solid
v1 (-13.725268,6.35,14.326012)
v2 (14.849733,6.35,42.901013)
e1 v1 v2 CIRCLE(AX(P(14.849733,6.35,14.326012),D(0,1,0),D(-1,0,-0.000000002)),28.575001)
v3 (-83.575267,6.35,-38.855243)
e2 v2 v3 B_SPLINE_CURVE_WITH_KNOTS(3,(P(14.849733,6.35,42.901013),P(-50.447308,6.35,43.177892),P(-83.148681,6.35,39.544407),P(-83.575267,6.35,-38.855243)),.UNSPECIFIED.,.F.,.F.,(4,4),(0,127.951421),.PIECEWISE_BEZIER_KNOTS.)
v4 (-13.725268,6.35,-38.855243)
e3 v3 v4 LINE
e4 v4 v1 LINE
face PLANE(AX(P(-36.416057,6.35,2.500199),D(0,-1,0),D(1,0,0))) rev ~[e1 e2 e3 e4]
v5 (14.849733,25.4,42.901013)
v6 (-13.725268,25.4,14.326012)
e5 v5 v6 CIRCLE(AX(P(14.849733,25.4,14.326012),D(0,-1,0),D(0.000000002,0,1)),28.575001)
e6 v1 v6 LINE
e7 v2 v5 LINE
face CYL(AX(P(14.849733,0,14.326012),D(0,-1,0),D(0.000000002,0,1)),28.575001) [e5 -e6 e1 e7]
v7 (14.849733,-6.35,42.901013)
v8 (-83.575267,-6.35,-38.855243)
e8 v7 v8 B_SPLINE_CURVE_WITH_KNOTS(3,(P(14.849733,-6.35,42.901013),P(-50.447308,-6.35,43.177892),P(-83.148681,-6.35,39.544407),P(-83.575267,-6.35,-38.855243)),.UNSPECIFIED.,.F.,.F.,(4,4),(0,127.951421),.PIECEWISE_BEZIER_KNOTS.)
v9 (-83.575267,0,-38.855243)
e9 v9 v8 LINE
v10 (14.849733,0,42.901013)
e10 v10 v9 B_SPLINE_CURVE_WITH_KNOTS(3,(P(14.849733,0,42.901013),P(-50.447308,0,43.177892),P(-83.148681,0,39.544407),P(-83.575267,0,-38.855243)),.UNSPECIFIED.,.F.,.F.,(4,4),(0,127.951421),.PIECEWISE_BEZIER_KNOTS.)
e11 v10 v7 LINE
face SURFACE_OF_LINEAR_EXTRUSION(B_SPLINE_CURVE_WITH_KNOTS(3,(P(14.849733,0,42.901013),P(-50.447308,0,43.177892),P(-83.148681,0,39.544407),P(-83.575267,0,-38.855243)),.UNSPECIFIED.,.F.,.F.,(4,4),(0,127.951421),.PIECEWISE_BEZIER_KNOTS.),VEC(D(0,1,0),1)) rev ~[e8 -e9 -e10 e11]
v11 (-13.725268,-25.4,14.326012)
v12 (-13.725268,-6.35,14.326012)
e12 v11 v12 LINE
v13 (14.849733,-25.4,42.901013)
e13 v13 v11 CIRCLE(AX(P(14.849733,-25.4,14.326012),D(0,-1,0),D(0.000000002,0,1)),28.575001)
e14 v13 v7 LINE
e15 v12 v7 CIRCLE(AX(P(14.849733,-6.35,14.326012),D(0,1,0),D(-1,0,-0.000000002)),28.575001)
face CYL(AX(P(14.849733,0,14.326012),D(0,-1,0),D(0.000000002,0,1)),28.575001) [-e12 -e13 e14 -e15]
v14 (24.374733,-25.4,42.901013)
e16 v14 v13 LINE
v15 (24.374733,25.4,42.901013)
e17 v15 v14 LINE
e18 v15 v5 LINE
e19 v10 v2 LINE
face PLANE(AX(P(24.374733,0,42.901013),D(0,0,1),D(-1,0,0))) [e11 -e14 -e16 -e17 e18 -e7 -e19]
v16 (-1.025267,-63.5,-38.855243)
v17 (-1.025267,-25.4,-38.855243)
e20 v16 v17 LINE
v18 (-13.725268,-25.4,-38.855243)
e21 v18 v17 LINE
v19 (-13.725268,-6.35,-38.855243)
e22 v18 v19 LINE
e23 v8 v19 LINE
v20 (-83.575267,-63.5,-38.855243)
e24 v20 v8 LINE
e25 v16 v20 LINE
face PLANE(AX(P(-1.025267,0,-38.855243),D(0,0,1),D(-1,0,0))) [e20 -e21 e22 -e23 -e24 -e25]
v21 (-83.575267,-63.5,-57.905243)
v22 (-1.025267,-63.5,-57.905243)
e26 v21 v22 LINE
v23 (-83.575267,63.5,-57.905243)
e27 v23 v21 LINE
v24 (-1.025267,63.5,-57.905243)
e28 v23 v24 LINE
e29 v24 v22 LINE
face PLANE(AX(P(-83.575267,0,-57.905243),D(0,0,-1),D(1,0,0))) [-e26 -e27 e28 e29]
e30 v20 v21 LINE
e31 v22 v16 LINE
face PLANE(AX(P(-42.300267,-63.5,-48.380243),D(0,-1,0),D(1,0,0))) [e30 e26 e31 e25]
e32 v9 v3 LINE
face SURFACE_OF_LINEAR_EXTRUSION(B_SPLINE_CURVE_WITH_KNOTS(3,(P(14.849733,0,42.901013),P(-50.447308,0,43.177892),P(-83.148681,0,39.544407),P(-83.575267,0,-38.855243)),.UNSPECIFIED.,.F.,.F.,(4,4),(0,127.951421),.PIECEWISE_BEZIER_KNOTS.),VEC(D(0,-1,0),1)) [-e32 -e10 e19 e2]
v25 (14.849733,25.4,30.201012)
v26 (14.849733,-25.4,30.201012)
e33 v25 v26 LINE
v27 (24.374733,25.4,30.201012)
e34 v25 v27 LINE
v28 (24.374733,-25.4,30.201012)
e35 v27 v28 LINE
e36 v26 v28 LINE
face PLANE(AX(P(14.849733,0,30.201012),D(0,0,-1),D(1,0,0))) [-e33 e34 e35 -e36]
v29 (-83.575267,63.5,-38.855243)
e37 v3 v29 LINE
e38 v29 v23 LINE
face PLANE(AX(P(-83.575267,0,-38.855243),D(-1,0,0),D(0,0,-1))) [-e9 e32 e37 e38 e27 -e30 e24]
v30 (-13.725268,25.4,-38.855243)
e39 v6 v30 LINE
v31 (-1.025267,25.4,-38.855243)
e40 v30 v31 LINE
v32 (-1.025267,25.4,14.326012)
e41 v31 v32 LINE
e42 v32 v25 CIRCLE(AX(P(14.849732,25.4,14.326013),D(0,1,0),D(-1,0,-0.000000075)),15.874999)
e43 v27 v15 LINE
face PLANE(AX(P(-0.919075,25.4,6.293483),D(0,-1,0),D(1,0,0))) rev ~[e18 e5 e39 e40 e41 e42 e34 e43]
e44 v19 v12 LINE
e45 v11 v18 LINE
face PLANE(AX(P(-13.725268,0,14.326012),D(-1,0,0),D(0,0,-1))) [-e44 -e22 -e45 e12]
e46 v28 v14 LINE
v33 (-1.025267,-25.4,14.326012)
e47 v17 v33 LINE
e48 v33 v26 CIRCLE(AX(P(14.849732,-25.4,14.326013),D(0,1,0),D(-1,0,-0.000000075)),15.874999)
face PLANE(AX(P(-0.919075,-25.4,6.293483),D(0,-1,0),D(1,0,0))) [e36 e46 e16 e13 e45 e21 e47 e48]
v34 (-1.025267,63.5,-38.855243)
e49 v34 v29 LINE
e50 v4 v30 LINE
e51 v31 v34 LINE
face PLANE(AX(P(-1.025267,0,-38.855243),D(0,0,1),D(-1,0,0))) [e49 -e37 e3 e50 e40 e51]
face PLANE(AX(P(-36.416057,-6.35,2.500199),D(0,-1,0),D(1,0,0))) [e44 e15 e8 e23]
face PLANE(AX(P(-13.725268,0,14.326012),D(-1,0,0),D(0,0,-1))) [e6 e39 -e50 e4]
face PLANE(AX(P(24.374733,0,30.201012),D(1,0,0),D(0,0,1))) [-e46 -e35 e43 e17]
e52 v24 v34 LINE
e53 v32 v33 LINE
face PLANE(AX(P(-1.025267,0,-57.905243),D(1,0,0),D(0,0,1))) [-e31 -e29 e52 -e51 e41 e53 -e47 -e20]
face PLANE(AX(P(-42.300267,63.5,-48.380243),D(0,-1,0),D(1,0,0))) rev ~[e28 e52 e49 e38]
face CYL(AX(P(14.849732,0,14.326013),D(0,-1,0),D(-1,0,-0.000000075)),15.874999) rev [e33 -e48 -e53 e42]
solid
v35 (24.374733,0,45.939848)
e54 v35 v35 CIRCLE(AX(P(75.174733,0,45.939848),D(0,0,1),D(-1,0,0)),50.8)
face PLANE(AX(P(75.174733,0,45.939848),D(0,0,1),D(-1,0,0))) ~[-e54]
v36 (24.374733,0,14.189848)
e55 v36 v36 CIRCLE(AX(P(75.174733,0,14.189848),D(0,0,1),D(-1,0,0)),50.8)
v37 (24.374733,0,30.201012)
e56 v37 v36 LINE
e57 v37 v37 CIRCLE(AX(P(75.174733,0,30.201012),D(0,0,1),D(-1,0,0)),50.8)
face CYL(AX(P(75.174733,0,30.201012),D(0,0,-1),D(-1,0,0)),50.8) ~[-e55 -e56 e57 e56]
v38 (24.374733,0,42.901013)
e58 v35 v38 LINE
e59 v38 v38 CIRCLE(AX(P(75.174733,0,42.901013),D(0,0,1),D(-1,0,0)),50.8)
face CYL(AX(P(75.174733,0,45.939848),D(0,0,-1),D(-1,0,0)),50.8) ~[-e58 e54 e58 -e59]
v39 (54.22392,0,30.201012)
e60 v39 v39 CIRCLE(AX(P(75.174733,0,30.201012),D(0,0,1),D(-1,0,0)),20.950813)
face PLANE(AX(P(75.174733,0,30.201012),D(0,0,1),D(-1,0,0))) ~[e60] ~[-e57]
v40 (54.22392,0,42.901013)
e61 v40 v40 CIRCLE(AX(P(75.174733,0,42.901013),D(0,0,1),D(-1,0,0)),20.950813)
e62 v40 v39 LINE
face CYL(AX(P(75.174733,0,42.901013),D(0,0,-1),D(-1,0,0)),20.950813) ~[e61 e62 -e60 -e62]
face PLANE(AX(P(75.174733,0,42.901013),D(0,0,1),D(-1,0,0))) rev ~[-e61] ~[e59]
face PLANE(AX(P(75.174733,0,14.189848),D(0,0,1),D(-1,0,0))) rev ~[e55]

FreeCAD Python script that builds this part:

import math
import FreeCAD as App
import Part
import Sketcher
from FreeCAD import Vector
Q = App.Units.Quantity

doc = App.newDocument("Part")
body = doc.addObject("PartDesign::Body", "Body")

# Sketch on XZ plane
sketch1 = doc.addObject("Sketcher::SketchObject", "Sketch")
body.addObject(sketch1)
sketch1.AttachmentSupport = (doc.XZ_Plane, [""])
sketch1.MapMode = "FlatFace"
sketch1.addGeometry([
    Part.LineSegment(Vector(-83.575267, -38.855243, 0), Vector(-83.575267, -57.905243, 0)),
    Part.LineSegment(Vector(-83.575267, -57.905243, 0), Vector(-1.025267, -57.905243, 0)),
    Part.LineSegment(Vector(-1.025267, -57.905243, 0), Vector(-1.025267, -38.855243, 0)),
    Part.LineSegment(Vector(-1.025267, -38.855243, 0), Vector(-83.575267, -38.855243, 0)),
], False)
sketch1.addConstraint([
    Sketcher.Constraint("Coincident", 0, 2, 1, 1),
    Sketcher.Constraint("Coincident", 1, 2, 2, 1),
    Sketcher.Constraint("Coincident", 2, 2, 3, 1),
    Sketcher.Constraint("Coincident", 3, 2, 0, 1),
    Sketcher.Constraint("Vertical", 0),
    Sketcher.Constraint("Horizontal", 1),
    Sketcher.Constraint("Vertical", 2),
    Sketcher.Constraint("Horizontal", 3),
    Sketcher.Constraint("DistanceX", 1, 1, 1, 2, Q("3.25 in")),
    Sketcher.Constraint("DistanceY", 0, 2, 0, 1, Q("0.75 in")),
    Sketcher.Constraint("DistanceX", 0, 2, -1, 1, 83.575267),
    Sketcher.Constraint("DistanceY", 0, 2, -1, 1, 57.905243),
])
pad1 = doc.addObject("PartDesign::Pad", "Pad")
body.addObject(pad1)
pad1.Profile = sketch1
pad1.Length = Q("5 in")
pad1.Midplane = True

# Sketch on XZ plane
sketch2 = doc.addObject("Sketcher::SketchObject", "Sketch001")
body.addObject(sketch2)
sketch2.AttachmentSupport = (doc.XZ_Plane, [""])
sketch2.MapMode = "FlatFace"
sketch2.addGeometry([
    Part.LineSegment(Vector(-13.725268, -38.855243, 0), Vector(-1.025267, -38.855243, 0)),  # 0
    Part.LineSegment(Vector(-1.025267, -38.855243, 0), Vector(-1.025267, 14.326012, 0)),  # 1
    Part.ArcOfCircle(Part.Circle(Vector(14.849732, 14.326013, 0), Vector(0, 0, 1), 15.874999), math.radians(89.999996), math.radians(180.000004)),  # 2
    Part.LineSegment(Vector(14.849733, 30.201012, 0), Vector(24.374733, 30.201012, 0)),  # 3
    Part.LineSegment(Vector(24.374733, 30.201012, 0), Vector(24.374733, 42.901013, 0)),  # 4
    Part.LineSegment(Vector(24.374733, 42.901013, 0), Vector(14.849733, 42.901013, 0)),  # 5
    Part.ArcOfCircle(Part.Circle(Vector(14.849733, 14.326012, 0), Vector(0, 0, 1), 28.575001), math.radians(90), math.radians(180)),  # 6
    Part.LineSegment(Vector(-13.725268, 14.326012, 0), Vector(-13.725268, -38.855243, 0)),  # 7
], False)
sketch2.addConstraint([
    Sketcher.Constraint("Coincident", 0, 2, 1, 1),
    Sketcher.Constraint("Tangent", 1, 2, 2, 2),
    Sketcher.Constraint("Tangent", 2, 1, 3, 1),
    Sketcher.Constraint("Coincident", 3, 2, 4, 1),
    Sketcher.Constraint("Coincident", 4, 2, 5, 1),
    Sketcher.Constraint("Tangent", 5, 2, 6, 1),
    Sketcher.Constraint("Tangent", 6, 2, 7, 1),
    Sketcher.Constraint("Coincident", 7, 2, 0, 1),
    Sketcher.Constraint("Horizontal", 0),
    Sketcher.Constraint("Vertical", 1),
    Sketcher.Constraint("Horizontal", 3),
    Sketcher.Constraint("Vertical", 4),
    Sketcher.Constraint("Horizontal", 5),
    Sketcher.Constraint("Vertical", 7),
    Sketcher.Constraint("Coincident", 6, 3, 2, 3),
    Sketcher.Constraint("DistanceX", 0, 1, 0, 2, Q("0.5 in")),
    Sketcher.Constraint("Radius", 2, Q("0.625 in")),
    Sketcher.Constraint("DistanceX", 1, 2, 3, 2, Q("1 in")),
    Sketcher.Constraint("DistanceY", 1, 1, 1, 2, 53.181255),
    Sketcher.Constraint("DistanceX", -1, 1, 2, 3, 14.849732),
    Sketcher.Constraint("DistanceY", -1, 1, 2, 1, 30.201012),
])
pad2 = doc.addObject("PartDesign::Pad", "Pad001")
body.addObject(pad2)
pad2.Profile = sketch2
pad2.Length = Q("2 in")
pad2.Midplane = True

# Sketch on XZ plane
sketch3 = doc.addObject("Sketcher::SketchObject", "Sketch002")
body.addObject(sketch3)
sketch3.AttachmentSupport = (doc.XZ_Plane, [""])
sketch3.MapMode = "FlatFace"
sketch3.addGeometry([
    Part.BSplineCurve([Vector(14.849733, 42.901013, 0), Vector(-50.447308, 43.177892, 0), Vector(-83.148681, 39.544407, 0), Vector(-83.575267, -38.855243, 0)], [4, 4], [0, 127.951421], False, 3, [1, 1, 1, 1], False),
    Part.LineSegment(Vector(-83.575267, -38.855243, 0), Vector(-13.725268, -38.855243, 0)),
    Part.LineSegment(Vector(-13.725268, -38.855243, 0), Vector(-13.725268, 14.326012, 0)),
    Part.ArcOfCircle(Part.Circle(Vector(14.849733, 14.326012, 0), Vector(0, 0, 1), 28.575001), math.radians(90), math.radians(180)),
], False)
sketch3.addConstraint([
    Sketcher.Constraint("Block", 0),
    Sketcher.Constraint("Coincident", 0, 2, 1, 1),
    Sketcher.Constraint("Coincident", 1, 2, 2, 1),
    Sketcher.Constraint("Tangent", 2, 2, 3, 2),
    Sketcher.Constraint("Coincident", 3, 1, 0, 1),
    Sketcher.Constraint("Horizontal", 1),
    Sketcher.Constraint("Vertical", 2),
    Sketcher.Constraint("Radius", 3, Q("1.125 in")),
    Sketcher.Constraint("DistanceX", 1, 1, 1, 2, Q("2.75 in")),
])
pad3 = doc.addObject("PartDesign::Pad", "Pad002")
body.addObject(pad3)
pad3.Profile = sketch3
pad3.Length = Q("0.5 in")
pad3.Midplane = True
body2 = doc.addObject("PartDesign::Body", "Body001")

# Sketch on XZ plane
sketch4 = doc.addObject("Sketcher::SketchObject", "Sketch003")
body2.addObject(sketch4)
sketch4.AttachmentSupport = (doc.getObject("XZ_Plane001"), [""])
sketch4.MapMode = "FlatFace"
sketch4.addGeometry([
    Part.LineSegment(Vector(24.374733, 45.939848, 0), Vector(24.374733, 42.901013, 0)),  # 0
    Part.LineSegment(Vector(24.374733, 42.901013, 0), Vector(54.22392, 42.901013, 0)),  # 1
    Part.LineSegment(Vector(54.22392, 42.901013, 0), Vector(54.22392, 30.201012, 0)),  # 2
    Part.LineSegment(Vector(54.22392, 30.201012, 0), Vector(24.374733, 30.201012, 0)),  # 3
    Part.LineSegment(Vector(24.374733, 30.201012, 0), Vector(24.374733, 14.189848, 0)),  # 4
    Part.LineSegment(Vector(24.374733, 14.189848, 0), Vector(75.174733, 14.189848, 0)),  # 5
    Part.LineSegment(Vector(75.174733, 14.189848, 0), Vector(75.174733, 45.939848, 0)),  # 6
    Part.LineSegment(Vector(75.174733, 45.939848, 0), Vector(24.374733, 45.939848, 0)),  # 7
], False)
sketch4.addGeometry(Part.LineSegment(Vector(75.174733, 14.189848, 0), Vector(75.174733, 45.939848, 0)), True)  # axis
sketch4.addConstraint([
    Sketcher.Constraint("Coincident", 0, 2, 1, 1),
    Sketcher.Constraint("Coincident", 1, 2, 2, 1),
    Sketcher.Constraint("Coincident", 2, 2, 3, 1),
    Sketcher.Constraint("Coincident", 3, 2, 4, 1),
    Sketcher.Constraint("Coincident", 4, 2, 5, 1),
    Sketcher.Constraint("Coincident", 5, 2, 6, 1),
    Sketcher.Constraint("Coincident", 6, 2, 7, 1),
    Sketcher.Constraint("Coincident", 7, 2, 0, 1),
    Sketcher.Constraint("Vertical", 0),
    Sketcher.Constraint("Horizontal", 1),
    Sketcher.Constraint("Vertical", 2),
    Sketcher.Constraint("Horizontal", 3),
    Sketcher.Constraint("Vertical", 4),
    Sketcher.Constraint("Horizontal", 5),
    Sketcher.Constraint("Vertical", 6),
    Sketcher.Constraint("Horizontal", 7),
    Sketcher.Constraint("Vertical", 8),
    Sketcher.Constraint("Coincident", 8, 1, 5, 2),
    Sketcher.Constraint("Horizontal", 7, 2, 8, 2),
    Sketcher.Constraint("Vertical", 0, 2, 3, 2),
    Sketcher.Constraint("DistanceX", 5, 1, 5, 2, Q("2 in")),
    Sketcher.Constraint("DistanceY", 2, 2, 2, 1, Q("0.5 in")),
    Sketcher.Constraint("DistanceY", 6, 1, 6, 2, Q("1.25 in")),
    Sketcher.Constraint("DistanceX", -1, 1, 1, 2, Q("2.1348 in")),
    Sketcher.Constraint("DistanceX", 1, 1, 1, 2, 29.849187),
    Sketcher.Constraint("DistanceY", 0, 2, 0, 1, 3.038835),
    Sketcher.Constraint("DistanceY", -1, 1, 2, 2, 30.201012),
])
revolution = doc.addObject("PartDesign::Revolution", "Revolution")
body2.addObject(revolution)
revolution.Profile = sketch4
revolution.ReferenceAxis = (sketch4, ["Axis0"])
revolution.Angle = 360

doc.recompute()
